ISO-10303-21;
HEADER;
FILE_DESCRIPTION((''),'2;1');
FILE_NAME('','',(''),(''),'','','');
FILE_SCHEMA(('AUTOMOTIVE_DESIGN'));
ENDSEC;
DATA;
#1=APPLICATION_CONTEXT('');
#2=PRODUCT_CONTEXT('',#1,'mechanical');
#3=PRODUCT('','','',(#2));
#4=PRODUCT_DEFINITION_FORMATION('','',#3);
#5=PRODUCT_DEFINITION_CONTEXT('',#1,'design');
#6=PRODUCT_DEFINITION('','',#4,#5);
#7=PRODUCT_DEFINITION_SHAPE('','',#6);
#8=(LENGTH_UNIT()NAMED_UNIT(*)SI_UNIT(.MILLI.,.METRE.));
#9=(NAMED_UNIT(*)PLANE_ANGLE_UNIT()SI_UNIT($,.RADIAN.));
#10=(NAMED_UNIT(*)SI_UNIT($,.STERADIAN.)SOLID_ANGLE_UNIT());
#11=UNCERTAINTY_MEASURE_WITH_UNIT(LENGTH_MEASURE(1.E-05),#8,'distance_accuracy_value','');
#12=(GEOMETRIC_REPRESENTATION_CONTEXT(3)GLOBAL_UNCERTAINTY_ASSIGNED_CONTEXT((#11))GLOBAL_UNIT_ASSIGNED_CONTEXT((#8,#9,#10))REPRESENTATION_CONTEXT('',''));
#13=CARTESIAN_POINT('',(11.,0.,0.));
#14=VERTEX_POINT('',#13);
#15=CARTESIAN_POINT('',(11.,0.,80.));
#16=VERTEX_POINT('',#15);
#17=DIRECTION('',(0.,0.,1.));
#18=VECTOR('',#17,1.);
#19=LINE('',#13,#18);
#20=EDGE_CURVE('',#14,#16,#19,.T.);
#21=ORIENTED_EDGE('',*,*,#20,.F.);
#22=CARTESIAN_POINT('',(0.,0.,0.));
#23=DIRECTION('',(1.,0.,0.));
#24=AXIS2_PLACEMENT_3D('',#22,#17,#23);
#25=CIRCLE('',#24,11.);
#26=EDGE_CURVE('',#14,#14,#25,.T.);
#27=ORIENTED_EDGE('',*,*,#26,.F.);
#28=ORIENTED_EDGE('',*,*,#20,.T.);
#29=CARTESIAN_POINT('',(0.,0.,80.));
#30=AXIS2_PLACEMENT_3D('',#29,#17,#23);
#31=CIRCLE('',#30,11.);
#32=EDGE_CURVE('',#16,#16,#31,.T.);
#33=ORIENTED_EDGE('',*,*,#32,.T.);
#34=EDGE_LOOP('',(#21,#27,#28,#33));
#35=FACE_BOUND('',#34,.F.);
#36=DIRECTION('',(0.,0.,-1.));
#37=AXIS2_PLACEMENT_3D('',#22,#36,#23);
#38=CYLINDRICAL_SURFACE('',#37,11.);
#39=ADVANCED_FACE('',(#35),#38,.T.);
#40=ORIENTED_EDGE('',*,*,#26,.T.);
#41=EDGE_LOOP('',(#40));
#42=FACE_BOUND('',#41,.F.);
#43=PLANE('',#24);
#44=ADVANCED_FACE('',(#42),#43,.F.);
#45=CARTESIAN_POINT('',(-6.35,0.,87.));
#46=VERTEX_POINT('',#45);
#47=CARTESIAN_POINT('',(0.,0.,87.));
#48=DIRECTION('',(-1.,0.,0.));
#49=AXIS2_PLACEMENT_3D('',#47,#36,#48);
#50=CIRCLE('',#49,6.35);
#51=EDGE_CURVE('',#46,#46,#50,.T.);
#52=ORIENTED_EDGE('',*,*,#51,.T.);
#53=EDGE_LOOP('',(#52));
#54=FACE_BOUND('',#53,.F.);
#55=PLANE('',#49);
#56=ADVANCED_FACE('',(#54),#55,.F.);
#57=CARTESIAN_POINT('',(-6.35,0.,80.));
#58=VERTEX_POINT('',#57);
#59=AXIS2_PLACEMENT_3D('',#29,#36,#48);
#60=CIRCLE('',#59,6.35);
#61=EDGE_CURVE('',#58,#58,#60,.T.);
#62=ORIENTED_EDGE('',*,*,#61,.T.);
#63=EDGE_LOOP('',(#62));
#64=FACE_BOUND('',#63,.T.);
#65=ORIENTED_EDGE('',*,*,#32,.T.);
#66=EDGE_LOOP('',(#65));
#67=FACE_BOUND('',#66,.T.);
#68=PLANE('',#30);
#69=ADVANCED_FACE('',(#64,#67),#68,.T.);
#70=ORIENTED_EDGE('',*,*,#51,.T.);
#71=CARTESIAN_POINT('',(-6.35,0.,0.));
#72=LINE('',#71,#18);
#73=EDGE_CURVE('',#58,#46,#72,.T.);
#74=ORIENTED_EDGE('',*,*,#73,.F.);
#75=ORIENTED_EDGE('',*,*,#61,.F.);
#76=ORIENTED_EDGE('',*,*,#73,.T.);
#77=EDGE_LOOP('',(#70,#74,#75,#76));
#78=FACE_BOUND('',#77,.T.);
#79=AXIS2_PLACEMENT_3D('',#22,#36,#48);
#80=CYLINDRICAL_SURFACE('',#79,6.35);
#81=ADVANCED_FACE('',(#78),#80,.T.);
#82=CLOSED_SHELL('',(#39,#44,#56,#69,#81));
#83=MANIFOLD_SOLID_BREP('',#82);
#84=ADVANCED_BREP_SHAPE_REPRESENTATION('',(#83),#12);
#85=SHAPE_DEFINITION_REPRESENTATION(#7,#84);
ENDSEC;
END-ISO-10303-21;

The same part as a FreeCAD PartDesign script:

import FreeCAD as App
import Part
import Sketcher

V = App.Vector
Q = App.Units.Quantity

doc = App.newDocument("Part")
body = doc.addObject("PartDesign::Body", "Body")

# Sketch on XY plane
sketch1 = body.newObject("Sketcher::SketchObject", "Sketch")
sketch1.AttachmentSupport = (doc.getObject("XY_Plane"), [""])
sketch1.MapMode = "FlatFace"
sketch1.addGeometry([
    Part.Circle(V(0, 0, 0), V(0, 0, 1), 11),
    Part.Circle(V(0, 0, 0), V(0, 0, 1), 6),
], False)
sketch1.addConstraint([
    Sketcher.Constraint("Coincident", 0, 3, -1, 1),
    Sketcher.Constraint("Coincident", 1, 3, -1, 1),
    Sketcher.Constraint("Diameter", 0, Q("22 mm")),
    Sketcher.Constraint("Diameter", 1, Q("12.7 mm")),
])
pad1 = body.newObject("PartDesign::Pad", "Pad")
pad1.Profile = sketch1
pad1.Length = 80

# Sketch on XY plane
sketch2 = body.newObject("Sketcher::SketchObject", "Sketch001")
sketch2.AttachmentSupport = (doc.getObject("XY_Plane"), [""])
sketch2.MapMode = "FlatFace"
sketch2.addGeometry(Part.Circle(V(0, 0, 0), V(0, 0, 1), 6), False)
sketch2.addConstraint([
    Sketcher.Constraint("Coincident", 0, 3, -1, 1),
    Sketcher.Constraint("Diameter", 0, Q("12.7 mm")),
])
pad2 = body.newObject("PartDesign::Pad", "Pad001")
pad2.Profile = sketch2
pad2.Length = 87

doc.recompute()
